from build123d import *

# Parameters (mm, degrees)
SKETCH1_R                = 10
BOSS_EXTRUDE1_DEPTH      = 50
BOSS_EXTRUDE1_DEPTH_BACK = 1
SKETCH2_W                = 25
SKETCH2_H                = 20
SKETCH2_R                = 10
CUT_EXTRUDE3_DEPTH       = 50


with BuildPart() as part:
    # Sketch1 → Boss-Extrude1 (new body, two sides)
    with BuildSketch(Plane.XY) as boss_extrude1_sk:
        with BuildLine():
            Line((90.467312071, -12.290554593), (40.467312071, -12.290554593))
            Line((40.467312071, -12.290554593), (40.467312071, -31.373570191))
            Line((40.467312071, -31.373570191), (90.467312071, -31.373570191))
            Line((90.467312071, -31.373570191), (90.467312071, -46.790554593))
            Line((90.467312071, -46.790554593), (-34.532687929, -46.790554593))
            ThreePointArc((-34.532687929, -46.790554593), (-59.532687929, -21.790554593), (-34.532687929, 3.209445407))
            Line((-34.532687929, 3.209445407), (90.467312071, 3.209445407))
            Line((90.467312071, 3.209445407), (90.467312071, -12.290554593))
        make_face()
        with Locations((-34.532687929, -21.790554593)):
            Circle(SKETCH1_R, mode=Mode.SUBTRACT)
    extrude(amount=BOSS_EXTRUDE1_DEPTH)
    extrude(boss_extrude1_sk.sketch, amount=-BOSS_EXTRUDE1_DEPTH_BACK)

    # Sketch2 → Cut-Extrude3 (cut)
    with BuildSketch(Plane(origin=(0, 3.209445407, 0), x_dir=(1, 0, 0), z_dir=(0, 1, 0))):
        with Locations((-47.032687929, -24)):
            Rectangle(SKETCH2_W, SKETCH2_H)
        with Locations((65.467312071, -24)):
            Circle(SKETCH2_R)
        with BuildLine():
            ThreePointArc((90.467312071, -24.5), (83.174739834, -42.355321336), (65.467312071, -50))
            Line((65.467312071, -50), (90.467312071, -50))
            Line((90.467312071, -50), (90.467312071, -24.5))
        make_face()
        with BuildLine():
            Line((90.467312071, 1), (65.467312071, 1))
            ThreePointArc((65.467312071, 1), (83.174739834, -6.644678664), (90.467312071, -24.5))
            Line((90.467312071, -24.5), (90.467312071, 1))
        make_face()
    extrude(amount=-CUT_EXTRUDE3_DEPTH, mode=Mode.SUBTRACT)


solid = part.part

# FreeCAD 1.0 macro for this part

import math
import FreeCAD as App
import Part
import Sketcher
from FreeCAD import Vector
Q = App.Units.Quantity


def add_polygon(sketch, points):
    """Adds a closed chain of lines whose ends are joined by coincident constraints."""
    first, n = sketch.GeometryCount, len(points)
    for a, b in zip(points, points[1:] + points[:1]):
        sketch.addGeometry(Part.LineSegment(App.Vector(*a, 0), App.Vector(*b, 0)), False)
    for i in range(n):
        sketch.addConstraint(Sketcher.Constraint("Coincident", first + i, 2, first + (i + 1) % n, 1))

doc = App.newDocument("Part")
body = doc.addObject("PartDesign::Body", "Body")

sketch1 = body.newObject("Sketcher::SketchObject", "Sketch")
sketch1.AttachmentSupport = (doc.getObject("XY_Plane"), [""])
sketch1.MapMode = "FlatFace"
sketch1.addGeometry(Part.LineSegment(Vector(40, -12, 0), Vector(90, -12, 0)), False)
sketch1.addGeometry(Part.LineSegment(Vector(90, -12, 0), Vector(90, 3, 0)), False)
sketch1.addGeometry(Part.LineSegment(Vector(90, 3, 0), Vector(-35, 3, 0)), False)
sketch1.addGeometry(Part.ArcOfCircle(Part.Circle(Vector(-35, -22, 0), Vector(0, 0, 1), 25), math.radians(90), math.radians(270)), False)
sketch1.addGeometry(Part.LineSegment(Vector(-35, -47, 0), Vector(90, -47, 0)), False)
sketch1.addGeometry(Part.LineSegment(Vector(90, -47, 0), Vector(90, -31, 0)), False)
sketch1.addGeometry(Part.LineSegment(Vector(90, -31, 0), Vector(40, -31, 0)), False)
sketch1.addGeometry(Part.LineSegment(Vector(40, -31, 0), Vector(40, -12, 0)), False)
sketch1.addGeometry(Part.Circle(Vector(-35, -22, 0), Vector(0, 0, 1), 10), False)
sketch1.addConstraint(Sketcher.Constraint("Coincident", 0, 2, 1, 1))
sketch1.addConstraint(Sketcher.Constraint("Coincident", 1, 2, 2, 1))
sketch1.addConstraint(Sketcher.Constraint("Tangent", 2, 2, 3, 1))
sketch1.addConstraint(Sketcher.Constraint("Tangent", 3, 2, 4, 1))
sketch1.addConstraint(Sketcher.Constraint("Coincident", 4, 2, 5, 1))
sketch1.addConstraint(Sketcher.Constraint("Coincident", 5, 2, 6, 1))
sketch1.addConstraint(Sketcher.Constraint("Coincident", 6, 2, 7, 1))
sketch1.addConstraint(Sketcher.Constraint("Coincident", 7, 2, 0, 1))
sketch1.addConstraint(Sketcher.Constraint("Horizontal", 0))
sketch1.addConstraint(Sketcher.Constraint("Vertical", 1))
sketch1.addConstraint(Sketcher.Constraint("Horizontal", 2))
sketch1.addConstraint(Sketcher.Constraint("Horizontal", 4))
sketch1.addConstraint(Sketcher.Constraint("Vertical", 5))
sketch1.addConstraint(Sketcher.Constraint("Horizontal", 6))
sketch1.addConstraint(Sketcher.Constraint("Vertical", 7))
sketch1.addConstraint(Sketcher.Constraint("Coincident", 8, 3, 3, 3))
sketch1.addConstraint(Sketcher.Constraint("Vertical", 1, 2, 4, 2))
sketch1.addConstraint(Sketcher.Constraint("Diameter", 8, Q("20 mm")))
sketch1.addConstraint(Sketcher.Constraint("Radius", 3, Q("25 mm")))
sketch1.addConstraint(Sketcher.Constraint("DistanceX", 0, 1, 0, 2, Q("50 mm")))
sketch1.addConstraint(Sketcher.Constraint("DistanceX", 2, 2, 2, 1, Q("125 mm")))
sketch1.addConstraint(Sketcher.Constraint("DistanceY", 1, 1, 1, 2, Q("15.5 mm")))
sketch1.addConstraint(Sketcher.Constraint("DistanceY", 5, 1, 5, 2, Q("15.416984 mm")))
sketch1.addConstraint(Sketcher.Constraint("DistanceY", 5, 2, -1, 1, Q("31.37357 mm")))
sketch1.addConstraint(Sketcher.Constraint("DistanceX", 3, 3, -1, 1, Q("34.532688 mm")))
pad1 = body.newObject("PartDesign::Pad", "Pad")
pad1.Profile = sketch1
pad1.Type = "TwoLengths"
pad1.Length = 50
pad1.Length2 = 1

sketch2 = body.newObject("Sketcher::SketchObject", "Sketch001")
sketch2.AttachmentSupport = (doc.getObject("XZ_Plane"), [""])
sketch2.MapMode = "FlatFace"
sketch2.AttachmentOffset = App.Placement(Vector(0, 0, -3.209445), App.Rotation())
add_polygon(sketch2, [(-60, 14), (-60, 34), (-35, 34), (-35, 14)])
sketch2.addGeometry(Part.Circle(Vector(65, 24, 0), Vector(0, 0, 1), 10), False)
sketch2.addGeometry(Part.ArcOfCircle(Part.Circle(Vector(65, 25, 0), Vector(0, 0, 1), 26), math.radians(0), math.radians(89)), False)
sketch2.addGeometry(Part.LineSegment(Vector(65, 50, 0), Vector(90, 50, 0)), False)
sketch2.addGeometry(Part.LineSegment(Vector(90, 50, 0), Vector(90, 24, 0)), False)
sketch2.addGeometry(Part.LineSegment(Vector(90, -1, 0), Vector(65, -1, 0)), False)
sketch2.addGeometry(Part.ArcOfCircle(Part.Circle(Vector(65, 24, 0), Vector(0, 0, 1), 26), math.radians(-89), math.radians(0)), False)
sketch2.addGeometry(Part.LineSegment(Vector(90, 24, 0), Vector(90, -1, 0)), False)
sketch2.addConstraint(Sketcher.Constraint("Coincident", 5, 2, 6, 1))
sketch2.addConstraint(Sketcher.Constraint("Coincident", 6, 2, 7, 1))
sketch2.addConstraint(Sketcher.Constraint("Tangent", 7, 2, 5, 1))
sketch2.addConstraint(Sketcher.Constraint("Coincident", 8, 2, 9, 1))
sketch2.addConstraint(Sketcher.Constraint("Tangent", 9, 2, 10, 1))
sketch2.addConstraint(Sketcher.Constraint("Coincident", 10, 2, 8, 1))
sketch2.addConstraint(Sketcher.Constraint("Vertical", 0))
sketch2.addConstraint(Sketcher.Constraint("Horizontal", 1))
sketch2.addConstraint(Sketcher.Constraint("Vertical", 2))
sketch2.addConstraint(Sketcher.Constraint("Horizontal", 3))
sketch2.addConstraint(Sketcher.Constraint("Horizontal", 6))
sketch2.addConstraint(Sketcher.Constraint("Vertical", 7))
sketch2.addConstraint(Sketcher.Constraint("Horizontal", 8))
sketch2.addConstraint(Sketcher.Constraint("Vertical", 10))
sketch2.addConstraint(Sketcher.Constraint("Coincident", 9, 3, 5, 3))
sketch2.addConstraint(Sketcher.Constraint("Equal", 5, 9))
sketch2.addConstraint(Sketcher.Constraint("Vertical", 4, 3, 5, 2))
sketch2.addConstraint(Sketcher.Constraint("Vertical", 5, 2, 8, 2))
sketch2.addConstraint(Sketcher.Constraint("Equal", 3, 6))
sketch2.addConstraint(Sketcher.Constraint("Diameter", 4, Q("20 mm")))
sketch2.addConstraint(Sketcher.Constraint("DistanceX", 1, 1, 1, 2, Q("25 mm")))
sketch2.addConstraint(Sketcher.Constraint("DistanceY", 0, 1, 0, 2, Q("20 mm")))
sketch2.addConstraint(Sketcher.Constraint("DistanceY", 7, 2, 7, 1, Q("25.5 mm")))
sketch2.addConstraint(Sketcher.Constraint("DistanceY", -1, 1, 4, 3, Q("24 mm")))
sketch2.addConstraint(Sketcher.Constraint("DistanceY", -1, 1, 0, 2, Q("34 mm")))
sketch2.addConstraint(Sketcher.Constraint("DistanceY", -1, 1, 5, 2, Q("50 mm")))
sketch2.addConstraint(Sketcher.Constraint("DistanceX", 0, 2, 4, 3, Q("125 mm")))
sketch2.addConstraint(Sketcher.Constraint("DistanceX", -1, 1, 4, 3, Q("65.467312 mm")))
pocket1 = body.newObject("PartDesign::Pocket", "Pocket")
pocket1.Profile = sketch2
pocket1.Length = 50
pocket1.Reversed = True

doc.recompute()
